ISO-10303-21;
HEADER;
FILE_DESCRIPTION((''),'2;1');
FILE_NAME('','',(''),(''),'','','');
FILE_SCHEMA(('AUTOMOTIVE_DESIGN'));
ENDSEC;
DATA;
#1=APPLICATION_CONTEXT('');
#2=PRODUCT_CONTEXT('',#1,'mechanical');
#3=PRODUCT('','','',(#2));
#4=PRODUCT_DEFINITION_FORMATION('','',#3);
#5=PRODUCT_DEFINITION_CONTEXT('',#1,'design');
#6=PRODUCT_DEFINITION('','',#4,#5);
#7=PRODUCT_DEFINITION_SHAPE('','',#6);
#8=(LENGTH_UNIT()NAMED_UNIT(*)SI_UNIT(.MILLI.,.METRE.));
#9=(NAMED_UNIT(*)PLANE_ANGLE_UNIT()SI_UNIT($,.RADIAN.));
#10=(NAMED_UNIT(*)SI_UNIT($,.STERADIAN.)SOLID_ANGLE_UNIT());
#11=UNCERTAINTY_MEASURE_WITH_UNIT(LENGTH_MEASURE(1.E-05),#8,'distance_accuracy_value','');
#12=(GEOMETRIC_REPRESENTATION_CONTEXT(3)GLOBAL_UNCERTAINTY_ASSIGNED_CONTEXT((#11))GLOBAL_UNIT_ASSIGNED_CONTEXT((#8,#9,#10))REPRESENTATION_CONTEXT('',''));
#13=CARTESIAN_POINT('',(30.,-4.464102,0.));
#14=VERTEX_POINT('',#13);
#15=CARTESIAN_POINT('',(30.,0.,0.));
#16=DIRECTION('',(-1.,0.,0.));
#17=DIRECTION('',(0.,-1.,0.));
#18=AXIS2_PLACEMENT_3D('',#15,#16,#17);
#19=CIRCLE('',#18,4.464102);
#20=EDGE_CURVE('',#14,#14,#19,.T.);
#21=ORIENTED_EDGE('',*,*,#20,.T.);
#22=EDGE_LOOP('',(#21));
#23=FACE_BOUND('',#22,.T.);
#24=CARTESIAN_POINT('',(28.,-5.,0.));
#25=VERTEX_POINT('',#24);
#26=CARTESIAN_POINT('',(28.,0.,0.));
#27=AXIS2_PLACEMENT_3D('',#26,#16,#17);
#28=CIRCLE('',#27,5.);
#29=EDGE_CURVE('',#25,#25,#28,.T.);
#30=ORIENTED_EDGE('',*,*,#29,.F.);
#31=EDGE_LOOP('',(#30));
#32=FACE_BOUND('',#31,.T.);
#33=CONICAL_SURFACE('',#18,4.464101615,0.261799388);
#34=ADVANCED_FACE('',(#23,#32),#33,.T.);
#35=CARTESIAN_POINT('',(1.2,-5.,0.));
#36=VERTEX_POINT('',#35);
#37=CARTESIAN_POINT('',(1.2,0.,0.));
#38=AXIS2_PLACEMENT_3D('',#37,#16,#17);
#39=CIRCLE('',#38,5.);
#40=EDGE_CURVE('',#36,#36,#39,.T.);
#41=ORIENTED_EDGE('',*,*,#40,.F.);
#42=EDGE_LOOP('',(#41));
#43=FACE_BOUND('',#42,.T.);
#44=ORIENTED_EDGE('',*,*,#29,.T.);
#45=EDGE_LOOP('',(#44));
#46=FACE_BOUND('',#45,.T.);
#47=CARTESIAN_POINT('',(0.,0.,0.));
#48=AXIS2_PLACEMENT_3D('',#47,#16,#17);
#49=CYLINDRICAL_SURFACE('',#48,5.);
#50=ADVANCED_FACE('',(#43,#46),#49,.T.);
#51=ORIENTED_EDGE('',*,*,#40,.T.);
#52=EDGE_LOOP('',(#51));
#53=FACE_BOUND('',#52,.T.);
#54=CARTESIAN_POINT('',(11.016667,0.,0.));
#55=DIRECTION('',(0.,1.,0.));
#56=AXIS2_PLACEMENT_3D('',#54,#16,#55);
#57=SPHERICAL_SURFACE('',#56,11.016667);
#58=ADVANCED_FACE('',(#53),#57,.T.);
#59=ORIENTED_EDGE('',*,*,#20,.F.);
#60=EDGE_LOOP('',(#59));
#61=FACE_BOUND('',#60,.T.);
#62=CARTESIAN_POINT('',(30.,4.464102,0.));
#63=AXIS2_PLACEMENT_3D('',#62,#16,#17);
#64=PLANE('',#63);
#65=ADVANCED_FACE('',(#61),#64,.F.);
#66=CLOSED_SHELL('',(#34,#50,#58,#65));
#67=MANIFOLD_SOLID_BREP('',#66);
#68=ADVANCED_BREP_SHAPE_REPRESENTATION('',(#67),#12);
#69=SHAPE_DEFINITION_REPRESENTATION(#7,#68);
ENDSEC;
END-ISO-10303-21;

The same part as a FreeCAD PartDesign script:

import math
import FreeCAD as App
import Part
import Sketcher

V = App.Vector
Q = App.Units.Quantity

doc = App.newDocument("Part")
params = doc.addObject("Spreadsheet::Sheet", "Params")
for row, (alias, value) in enumerate([
    ("sketch1_width", "30 mm"),
    ("sketch1_width2", "26.8 mm"),
    ("revolution_angle", "360 deg"),
], start=1):
    params.set(f"A{row}", alias)
    params.set(f"B{row}", "=" + value)
    params.setAlias(f"B{row}", alias)

body = doc.addObject("PartDesign::Body", "Body")

sketch1 = body.newObject("Sketcher::SketchObject", "Sketch")
sketch1.AttachmentSupport = (doc.getObject("XY_Plane"), [""])
sketch1.MapMode = "FlatFace"
sketch1.addGeometry([
    Part.LineSegment(V(30, 4.464102, 0), V(28, 5, 0)),
    Part.LineSegment(V(28, 5, 0), V(1.2, 5, 0)),
    Part.ArcOfCircle(Part.Circle(V(11.016667, 0, 0), V(0, 0, 1), 11.016667), math.radians(153.008533), math.radians(180)),
    Part.LineSegment(V(0, 0, 0), V(30, 0, 0)),
    Part.LineSegment(V(30, 0, 0), V(30, 4.464102, 0)),
], False)
sketch1.addConstraint([
    Sketcher.Constraint("Coincident", 0, 2, 1, 1),
    Sketcher.Constraint("Coincident", 1, 2, 2, 1),
    Sketcher.Constraint("Coincident", 2, 2, 3, 1),
    Sketcher.Constraint("Coincident", 3, 2, 4, 1),
    Sketcher.Constraint("Coincident", 4, 2, 0, 1),
    Sketcher.Constraint("Horizontal", 1),
    Sketcher.Constraint("Horizontal", 3),
    Sketcher.Constraint("Vertical", 4),
    Sketcher.Constraint("Coincident", 2, 2, -1, 1),
    Sketcher.Constraint("PointOnObject", 2, 3, -1),
    Sketcher.Constraint("DistanceX", 3, 1, 3, 2, 30.0),
    Sketcher.Constraint("Angle", 0, Q("165 deg")),
    Sketcher.Constraint("DistanceX", 1, 2, 1, 1, 26.8),
    Sketcher.Constraint("DistanceX", -1, 1, 0, 2, 28.0),
    Sketcher.Constraint("DistanceY", -1, 1, 0, 2, 5.0),
])
sketch1.setExpression("Constraints[10]", "Params.sketch1_width")
sketch1.setExpression("Constraints[12]", "Params.sketch1_width2")
revolution = body.newObject("PartDesign::Revolution", "Revolution")
revolution.Profile = sketch1
revolution.ReferenceAxis = (sketch1, ["H_Axis"])
revolution.setExpression("Angle", "Params.revolution_angle")

doc.recompute()
